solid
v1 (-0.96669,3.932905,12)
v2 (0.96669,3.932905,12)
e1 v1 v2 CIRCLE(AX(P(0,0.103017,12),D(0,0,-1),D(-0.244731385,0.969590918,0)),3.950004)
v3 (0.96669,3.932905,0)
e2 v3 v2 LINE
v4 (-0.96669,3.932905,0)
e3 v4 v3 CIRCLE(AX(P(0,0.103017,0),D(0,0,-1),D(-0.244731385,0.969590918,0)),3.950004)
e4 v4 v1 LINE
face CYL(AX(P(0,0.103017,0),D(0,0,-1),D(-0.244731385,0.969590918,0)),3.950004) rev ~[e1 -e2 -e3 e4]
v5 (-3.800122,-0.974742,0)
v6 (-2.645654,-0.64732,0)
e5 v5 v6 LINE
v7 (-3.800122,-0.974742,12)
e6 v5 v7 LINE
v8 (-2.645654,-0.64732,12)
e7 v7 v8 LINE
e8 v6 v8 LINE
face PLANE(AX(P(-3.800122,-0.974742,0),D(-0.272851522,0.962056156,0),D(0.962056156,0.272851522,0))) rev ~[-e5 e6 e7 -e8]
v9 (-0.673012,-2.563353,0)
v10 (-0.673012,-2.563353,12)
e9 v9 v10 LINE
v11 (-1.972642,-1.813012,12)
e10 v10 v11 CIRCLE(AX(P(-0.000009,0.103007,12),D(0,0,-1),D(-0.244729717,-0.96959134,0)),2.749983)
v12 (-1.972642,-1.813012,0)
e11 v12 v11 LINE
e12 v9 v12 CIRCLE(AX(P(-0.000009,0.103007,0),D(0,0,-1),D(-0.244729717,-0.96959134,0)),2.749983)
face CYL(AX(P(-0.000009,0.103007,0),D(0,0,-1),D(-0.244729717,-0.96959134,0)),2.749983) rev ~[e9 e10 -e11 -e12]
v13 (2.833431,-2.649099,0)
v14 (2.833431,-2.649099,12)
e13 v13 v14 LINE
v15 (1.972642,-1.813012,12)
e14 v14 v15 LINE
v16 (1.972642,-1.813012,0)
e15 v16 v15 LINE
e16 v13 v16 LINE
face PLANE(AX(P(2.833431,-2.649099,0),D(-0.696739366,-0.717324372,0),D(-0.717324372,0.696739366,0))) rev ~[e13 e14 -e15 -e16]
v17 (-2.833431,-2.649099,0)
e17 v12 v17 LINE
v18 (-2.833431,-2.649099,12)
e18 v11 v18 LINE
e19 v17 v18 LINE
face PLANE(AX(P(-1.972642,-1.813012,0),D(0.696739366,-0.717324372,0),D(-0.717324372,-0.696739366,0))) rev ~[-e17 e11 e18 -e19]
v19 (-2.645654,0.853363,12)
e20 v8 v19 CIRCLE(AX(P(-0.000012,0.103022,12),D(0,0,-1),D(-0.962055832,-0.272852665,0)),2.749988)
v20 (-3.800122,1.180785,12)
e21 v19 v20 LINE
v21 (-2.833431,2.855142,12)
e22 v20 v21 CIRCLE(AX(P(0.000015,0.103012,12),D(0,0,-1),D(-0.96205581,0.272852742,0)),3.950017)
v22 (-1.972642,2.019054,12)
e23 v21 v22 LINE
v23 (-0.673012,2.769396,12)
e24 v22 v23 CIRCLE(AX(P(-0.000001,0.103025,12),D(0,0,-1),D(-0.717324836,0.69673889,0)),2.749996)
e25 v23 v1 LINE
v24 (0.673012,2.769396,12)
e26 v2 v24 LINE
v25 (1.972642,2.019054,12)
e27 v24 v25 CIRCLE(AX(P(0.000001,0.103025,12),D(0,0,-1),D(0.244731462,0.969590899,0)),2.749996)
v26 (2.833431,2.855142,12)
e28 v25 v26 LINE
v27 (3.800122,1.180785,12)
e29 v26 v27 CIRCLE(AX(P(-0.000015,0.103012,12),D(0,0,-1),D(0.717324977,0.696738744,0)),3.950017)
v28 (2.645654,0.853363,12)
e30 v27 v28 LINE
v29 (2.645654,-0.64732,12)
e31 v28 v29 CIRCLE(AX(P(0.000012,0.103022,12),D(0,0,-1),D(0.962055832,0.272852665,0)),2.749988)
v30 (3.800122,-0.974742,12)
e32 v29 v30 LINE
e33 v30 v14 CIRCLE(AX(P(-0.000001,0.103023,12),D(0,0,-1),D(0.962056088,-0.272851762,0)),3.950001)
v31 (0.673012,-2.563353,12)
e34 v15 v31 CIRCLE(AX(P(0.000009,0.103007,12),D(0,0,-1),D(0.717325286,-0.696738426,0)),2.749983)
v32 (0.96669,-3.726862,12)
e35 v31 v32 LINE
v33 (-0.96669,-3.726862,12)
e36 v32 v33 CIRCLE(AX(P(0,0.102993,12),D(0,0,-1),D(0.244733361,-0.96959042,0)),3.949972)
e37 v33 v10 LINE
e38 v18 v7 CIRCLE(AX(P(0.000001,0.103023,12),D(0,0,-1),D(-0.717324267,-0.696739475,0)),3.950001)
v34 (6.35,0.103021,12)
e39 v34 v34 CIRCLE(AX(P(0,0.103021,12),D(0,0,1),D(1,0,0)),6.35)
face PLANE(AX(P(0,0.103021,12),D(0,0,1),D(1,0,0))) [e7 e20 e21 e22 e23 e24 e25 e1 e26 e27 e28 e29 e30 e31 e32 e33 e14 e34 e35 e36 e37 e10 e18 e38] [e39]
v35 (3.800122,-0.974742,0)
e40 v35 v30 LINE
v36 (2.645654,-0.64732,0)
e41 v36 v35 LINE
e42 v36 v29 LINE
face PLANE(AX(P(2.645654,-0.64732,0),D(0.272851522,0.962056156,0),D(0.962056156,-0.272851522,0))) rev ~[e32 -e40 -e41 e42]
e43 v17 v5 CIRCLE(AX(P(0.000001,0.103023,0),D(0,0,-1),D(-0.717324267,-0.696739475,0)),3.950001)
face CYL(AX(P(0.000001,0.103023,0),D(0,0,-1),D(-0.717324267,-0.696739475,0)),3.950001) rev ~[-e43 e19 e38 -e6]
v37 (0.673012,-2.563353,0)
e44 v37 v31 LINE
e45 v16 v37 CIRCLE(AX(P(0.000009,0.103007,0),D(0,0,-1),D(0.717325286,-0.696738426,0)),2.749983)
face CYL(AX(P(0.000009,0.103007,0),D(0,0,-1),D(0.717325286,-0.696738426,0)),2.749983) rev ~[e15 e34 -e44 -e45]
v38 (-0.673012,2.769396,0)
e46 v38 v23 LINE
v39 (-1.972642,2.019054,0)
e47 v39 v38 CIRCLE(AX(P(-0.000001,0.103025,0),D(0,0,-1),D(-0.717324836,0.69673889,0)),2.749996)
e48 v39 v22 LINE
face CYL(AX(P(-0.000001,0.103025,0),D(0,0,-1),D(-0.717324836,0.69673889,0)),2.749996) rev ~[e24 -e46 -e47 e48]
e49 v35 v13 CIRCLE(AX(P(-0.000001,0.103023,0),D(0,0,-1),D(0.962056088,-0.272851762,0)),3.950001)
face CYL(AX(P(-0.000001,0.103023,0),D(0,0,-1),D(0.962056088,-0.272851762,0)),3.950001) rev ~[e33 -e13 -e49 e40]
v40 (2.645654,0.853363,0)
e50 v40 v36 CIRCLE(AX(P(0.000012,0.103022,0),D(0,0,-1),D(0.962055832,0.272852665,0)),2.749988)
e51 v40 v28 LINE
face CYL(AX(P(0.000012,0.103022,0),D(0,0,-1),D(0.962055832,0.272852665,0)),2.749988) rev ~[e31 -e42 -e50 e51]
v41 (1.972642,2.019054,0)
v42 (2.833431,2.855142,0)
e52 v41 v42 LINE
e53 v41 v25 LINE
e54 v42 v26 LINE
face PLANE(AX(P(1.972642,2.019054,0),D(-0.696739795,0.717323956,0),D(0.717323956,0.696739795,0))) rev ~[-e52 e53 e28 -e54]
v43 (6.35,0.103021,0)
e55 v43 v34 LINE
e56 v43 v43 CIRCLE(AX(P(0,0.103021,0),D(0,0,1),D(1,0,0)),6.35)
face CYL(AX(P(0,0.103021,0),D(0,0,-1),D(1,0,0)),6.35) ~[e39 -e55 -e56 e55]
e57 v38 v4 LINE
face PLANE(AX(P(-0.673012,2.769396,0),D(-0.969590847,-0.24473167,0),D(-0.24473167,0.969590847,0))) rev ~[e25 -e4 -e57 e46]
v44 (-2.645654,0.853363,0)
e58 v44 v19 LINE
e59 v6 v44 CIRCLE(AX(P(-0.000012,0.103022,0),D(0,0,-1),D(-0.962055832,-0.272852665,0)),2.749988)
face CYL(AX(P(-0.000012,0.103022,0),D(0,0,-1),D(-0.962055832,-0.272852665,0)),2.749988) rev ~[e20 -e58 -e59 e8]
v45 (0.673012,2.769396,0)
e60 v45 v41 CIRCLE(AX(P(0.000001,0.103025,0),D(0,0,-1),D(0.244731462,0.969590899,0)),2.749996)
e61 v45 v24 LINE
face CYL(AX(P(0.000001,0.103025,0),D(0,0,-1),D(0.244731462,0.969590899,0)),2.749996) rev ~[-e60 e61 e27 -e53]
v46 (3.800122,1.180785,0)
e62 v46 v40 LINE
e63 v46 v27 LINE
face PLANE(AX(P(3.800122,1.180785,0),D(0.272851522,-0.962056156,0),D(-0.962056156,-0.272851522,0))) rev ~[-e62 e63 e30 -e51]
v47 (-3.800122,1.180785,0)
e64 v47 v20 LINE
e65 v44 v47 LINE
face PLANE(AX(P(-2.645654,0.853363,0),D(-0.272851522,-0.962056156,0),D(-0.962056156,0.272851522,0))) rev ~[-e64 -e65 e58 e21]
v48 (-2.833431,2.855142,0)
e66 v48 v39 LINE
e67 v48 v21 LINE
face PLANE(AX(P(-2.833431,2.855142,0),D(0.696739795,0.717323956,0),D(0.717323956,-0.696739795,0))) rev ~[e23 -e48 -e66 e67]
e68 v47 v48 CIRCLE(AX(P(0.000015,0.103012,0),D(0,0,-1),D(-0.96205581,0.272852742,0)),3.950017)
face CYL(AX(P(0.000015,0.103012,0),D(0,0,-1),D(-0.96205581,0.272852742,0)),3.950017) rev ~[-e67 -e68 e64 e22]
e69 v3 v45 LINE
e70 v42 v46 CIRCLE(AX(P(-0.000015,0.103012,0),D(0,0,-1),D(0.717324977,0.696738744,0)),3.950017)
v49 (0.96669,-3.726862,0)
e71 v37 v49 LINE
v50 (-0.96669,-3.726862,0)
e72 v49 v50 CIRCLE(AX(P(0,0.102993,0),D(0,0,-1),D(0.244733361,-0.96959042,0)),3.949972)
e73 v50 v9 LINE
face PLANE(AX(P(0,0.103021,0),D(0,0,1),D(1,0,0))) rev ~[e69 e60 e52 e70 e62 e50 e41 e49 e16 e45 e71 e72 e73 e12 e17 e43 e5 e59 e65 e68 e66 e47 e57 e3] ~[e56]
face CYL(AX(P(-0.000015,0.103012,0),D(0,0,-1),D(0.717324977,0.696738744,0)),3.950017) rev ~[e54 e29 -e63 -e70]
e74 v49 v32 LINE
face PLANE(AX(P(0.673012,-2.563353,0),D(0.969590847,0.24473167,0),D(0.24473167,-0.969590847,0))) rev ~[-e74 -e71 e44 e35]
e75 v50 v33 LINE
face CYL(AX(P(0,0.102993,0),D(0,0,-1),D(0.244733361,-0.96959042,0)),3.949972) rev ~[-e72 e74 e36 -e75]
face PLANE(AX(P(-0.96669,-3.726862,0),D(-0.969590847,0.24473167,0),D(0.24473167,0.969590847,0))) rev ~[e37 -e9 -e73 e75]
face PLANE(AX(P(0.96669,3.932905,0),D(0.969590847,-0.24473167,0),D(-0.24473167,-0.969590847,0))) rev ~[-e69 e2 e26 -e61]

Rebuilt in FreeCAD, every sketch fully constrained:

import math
import FreeCAD as App
import Part
import Sketcher
from FreeCAD import Vector

doc = App.newDocument("Part")
params = doc.addObject("Spreadsheet::Sheet", "Params")
for row, (alias, value) in enumerate([
    ("sketch1_diameter", "12.7 mm"),
    ("sketch1_radius", "3.950001 mm"),
    ("sketch1_length", "1.200001 mm"),
    ("pad1_length", "12 mm"),
], start=1):
    params.set(f"A{row}", alias)
    params.set(f"B{row}", "=" + value)
    params.setAlias(f"B{row}", alias)

body = doc.addObject("PartDesign::Body", "Body")

sketch1 = body.newObject("Sketcher::SketchObject", "Sketch")
sketch1.AttachmentSupport = (doc.getObject("XY_Plane"), [""])
sketch1.MapMode = "FlatFace"
sketch1.addGeometry([
    Part.Circle(Vector(0, 0.103021, 0), Vector(0, 0, 1), 6.35),
    Part.LineSegment(Vector(-3.800122, -0.974742, 0), Vector(-2.645654, -0.64732, 0)),
    Part.ArcOfCircle(Part.Circle(Vector(-0.000012, 0.103022, 0), Vector(0, 0, 1), 2.749988), math.radians(164.165912), math.radians(195.834088)),
    Part.LineSegment(Vector(-2.645654, 0.853363, 0), Vector(-3.800122, 1.180785, 0)),
    Part.ArcOfCircle(Part.Circle(Vector(0.000015, 0.103012, 0), Vector(0, 0, 1), 3.950017), math.radians(135.834065), math.radians(164.165908)),
    Part.LineSegment(Vector(-2.833431, 2.855142, 0), Vector(-1.972642, 2.019054, 0)),
    Part.ArcOfCircle(Part.Circle(Vector(-0.000001, 0.103025, 0), Vector(0, 0, 1), 2.749996), math.radians(104.165965), math.radians(135.834053)),
    Part.LineSegment(Vector(-0.673012, 2.769396, 0), Vector(-0.96669, 3.932905, 0)),
    Part.ArcOfCircle(Part.Circle(Vector(0, 0.103017, 0), Vector(0, 0, 1), 3.950004), math.radians(75.83404), math.radians(104.16596)),
    Part.LineSegment(Vector(0.96669, 3.932905, 0), Vector(0.673012, 2.769396, 0)),
    Part.ArcOfCircle(Part.Circle(Vector(0.000001, 0.103025, 0), Vector(0, 0, 1), 2.749996), math.radians(44.165947), math.radians(75.834035)),
    Part.LineSegment(Vector(1.972642, 2.019054, 0), Vector(2.833431, 2.855142, 0)),
    Part.ArcOfCircle(Part.Circle(Vector(-0.000015, 0.103012, 0), Vector(0, 0, 1), 3.950017), math.radians(15.834092), math.radians(44.165935)),
    Part.LineSegment(Vector(3.800122, 1.180785, 0), Vector(2.645654, 0.853363, 0)),
    Part.ArcOfCircle(Part.Circle(Vector(0.000012, 0.103022, 0), Vector(0, 0, 1), 2.749988), math.radians(-15.834088), math.radians(15.834088)),
    Part.LineSegment(Vector(2.645654, -0.64732, 0), Vector(3.800122, -0.974742, 0)),
    Part.ArcOfCircle(Part.Circle(Vector(-0.000001, 0.103023, 0), Vector(0, 0, 1), 3.950001), math.radians(-44.165993), math.radians(-15.834034)),
    Part.LineSegment(Vector(2.833431, -2.649099, 0), Vector(1.972642, -1.813012, 0)),
    Part.ArcOfCircle(Part.Circle(Vector(0.000009, 0.103007, 0), Vector(0, 0, 1), 2.749983), math.radians(-75.834139), math.radians(-44.16591)),
    Part.LineSegment(Vector(0.673012, -2.563353, 0), Vector(0.96669, -3.726862, 0)),
    Part.ArcOfCircle(Part.Circle(Vector(0, 0.102993, 0), Vector(0, 0, 1), 3.949972), math.radians(-104.166077), math.radians(-75.833923)),
    Part.LineSegment(Vector(-0.96669, -3.726862, 0), Vector(-0.673012, -2.563353, 0)),
    Part.ArcOfCircle(Part.Circle(Vector(-0.000009, 0.103007, 0), Vector(0, 0, 1), 2.749983), math.radians(-135.83409), math.radians(-104.165861)),
    Part.LineSegment(Vector(-1.972642, -1.813012, 0), Vector(-2.833431, -2.649099, 0)),
    Part.ArcOfCircle(Part.Circle(Vector(0.000001, 0.103023, 0), Vector(0, 0, 1), 3.950001), math.radians(-164.165966), math.radians(-135.834007)),
], False)
sketch1.addConstraint([
    Sketcher.Constraint("Coincident", 1, 2, 2, 2),
    Sketcher.Constraint("Coincident", 2, 1, 3, 1),
    Sketcher.Constraint("Coincident", 3, 2, 4, 2),
    Sketcher.Constraint("Coincident", 4, 1, 5, 1),
    Sketcher.Constraint("Coincident", 5, 2, 6, 2),
    Sketcher.Constraint("Coincident", 6, 1, 7, 1),
    Sketcher.Constraint("Coincident", 7, 2, 8, 2),
    Sketcher.Constraint("Coincident", 8, 1, 9, 1),
    Sketcher.Constraint("Coincident", 9, 2, 10, 2),
    Sketcher.Constraint("Coincident", 10, 1, 11, 1),
    Sketcher.Constraint("Coincident", 11, 2, 12, 2),
    Sketcher.Constraint("Coincident", 12, 1, 13, 1),
    Sketcher.Constraint("Coincident", 13, 2, 14, 2),
    Sketcher.Constraint("Coincident", 14, 1, 15, 1),
    Sketcher.Constraint("Coincident", 15, 2, 16, 2),
    Sketcher.Constraint("Coincident", 16, 1, 17, 1),
    Sketcher.Constraint("Coincident", 17, 2, 18, 2),
    Sketcher.Constraint("Coincident", 18, 1, 19, 1),
    Sketcher.Constraint("Coincident", 19, 2, 20, 2),
    Sketcher.Constraint("Coincident", 20, 1, 21, 1),
    Sketcher.Constraint("Coincident", 21, 2, 22, 2),
    Sketcher.Constraint("Coincident", 22, 1, 23, 1),
    Sketcher.Constraint("Coincident", 23, 2, 24, 2),
    Sketcher.Constraint("Coincident", 24, 1, 1, 1),
    Sketcher.Constraint("Coincident", 6, 3, 0, 3),
    Sketcher.Constraint("Coincident", 8, 3, 0, 3),
    Sketcher.Constraint("Coincident", 10, 3, 0, 3),
    Sketcher.Constraint("Coincident", 12, 3, 2, 3),
    Sketcher.Constraint("Coincident", 14, 3, 4, 3),
    Sketcher.Constraint("Coincident", 16, 3, 0, 3),
    Sketcher.Constraint("Coincident", 18, 3, 4, 3),
    Sketcher.Constraint("Coincident", 22, 3, 12, 3),
    Sketcher.Constraint("Coincident", 24, 3, 0, 3),
    Sketcher.Constraint("Equal", 6, 10),
    Sketcher.Constraint("Equal", 4, 12),
    Sketcher.Constraint("Equal", 2, 14),
    Sketcher.Constraint("Equal", 18, 22),
    Sketcher.Constraint("Equal", 16, 24),
    Sketcher.Constraint("Symmetric", 2, 3, 4, 3, -2),
    Sketcher.Constraint("Symmetric", 7, 2, 8, 1, -2),
    Sketcher.Constraint("Symmetric", 19, 2, 20, 1, -2),
    Sketcher.Constraint("Parallel", 1, 13),
    Sketcher.Constraint("Parallel", 3, 15),
    Sketcher.Constraint("Parallel", 5, 17),
    Sketcher.Constraint("Parallel", 7, 19),
    Sketcher.Constraint("Parallel", 9, 21),
    Sketcher.Constraint("Parallel", 11, 23),
    Sketcher.Constraint("Horizontal", 0, 3, 2, 3),
    Sketcher.Constraint("Horizontal", 6, 1, 9, 2),
    Sketcher.Constraint("Horizontal", 5, 2, 10, 1),
    Sketcher.Constraint("Horizontal", 4, 1, 11, 2),
    Sketcher.Constraint("Horizontal", 3, 2, 12, 1),
    Sketcher.Constraint("Horizontal", 2, 1, 13, 2),
    Sketcher.Constraint("Horizontal", 1, 2, 14, 1),
    Sketcher.Constraint("Horizontal", 17, 2, 22, 1),
    Sketcher.Constraint("Vertical", 1, 2, 2, 1),
    Sketcher.Constraint("Vertical", 12, 1, 15, 2),
    Sketcher.Constraint("Vertical", 11, 2, 16, 1),
    Sketcher.Constraint("Vertical", 10, 1, 17, 2),
    Sketcher.Constraint("Vertical", 9, 2, 18, 1),
    Sketcher.Constraint("Vertical", 8, 1, 19, 2),
    Sketcher.Constraint("Equal", 3, 5),
    Sketcher.Constraint("Equal", 5, 7),
    Sketcher.Constraint("Diameter", 0, 12.7),
    Sketcher.Constraint("Radius", 16, 3.950001),
    Sketcher.Constraint("Distance", 1, 1.200001),
    Sketcher.Constraint("Radius", 2, 2.749988),
    Sketcher.Constraint("Radius", 20, 3.949972),
    Sketcher.Constraint("DistanceX", 6, 1, 2, 3, 0.673),
    Sketcher.Constraint("DistanceY", 16, 1, -1, 1, 2.649099),
    Sketcher.Constraint("DistanceX", 6, 1, 8, 1, 1.639702),
    Sketcher.Constraint("DistanceY", -1, 1, 0, 3, 0.103021),
    Sketcher.Constraint("DistanceY", 1, 2, -1, 1, 0.64732),
    Sketcher.Constraint("DistanceX", 3, 2, -1, 1, 3.800122),
    Sketcher.Constraint("DistanceX", -1, 1, 10, 1, 1.972642),
])
sketch1.setExpression("Constraints[63]", "Params.sketch1_diameter")
sketch1.setExpression("Constraints[64]", "Params.sketch1_radius")
sketch1.setExpression("Constraints[65]", "Params.sketch1_length")
pad1 = body.newObject("PartDesign::Pad", "Pad")
pad1.Profile = sketch1
pad1.setExpression("Length", "Params.pad1_length")

doc.recompute()
